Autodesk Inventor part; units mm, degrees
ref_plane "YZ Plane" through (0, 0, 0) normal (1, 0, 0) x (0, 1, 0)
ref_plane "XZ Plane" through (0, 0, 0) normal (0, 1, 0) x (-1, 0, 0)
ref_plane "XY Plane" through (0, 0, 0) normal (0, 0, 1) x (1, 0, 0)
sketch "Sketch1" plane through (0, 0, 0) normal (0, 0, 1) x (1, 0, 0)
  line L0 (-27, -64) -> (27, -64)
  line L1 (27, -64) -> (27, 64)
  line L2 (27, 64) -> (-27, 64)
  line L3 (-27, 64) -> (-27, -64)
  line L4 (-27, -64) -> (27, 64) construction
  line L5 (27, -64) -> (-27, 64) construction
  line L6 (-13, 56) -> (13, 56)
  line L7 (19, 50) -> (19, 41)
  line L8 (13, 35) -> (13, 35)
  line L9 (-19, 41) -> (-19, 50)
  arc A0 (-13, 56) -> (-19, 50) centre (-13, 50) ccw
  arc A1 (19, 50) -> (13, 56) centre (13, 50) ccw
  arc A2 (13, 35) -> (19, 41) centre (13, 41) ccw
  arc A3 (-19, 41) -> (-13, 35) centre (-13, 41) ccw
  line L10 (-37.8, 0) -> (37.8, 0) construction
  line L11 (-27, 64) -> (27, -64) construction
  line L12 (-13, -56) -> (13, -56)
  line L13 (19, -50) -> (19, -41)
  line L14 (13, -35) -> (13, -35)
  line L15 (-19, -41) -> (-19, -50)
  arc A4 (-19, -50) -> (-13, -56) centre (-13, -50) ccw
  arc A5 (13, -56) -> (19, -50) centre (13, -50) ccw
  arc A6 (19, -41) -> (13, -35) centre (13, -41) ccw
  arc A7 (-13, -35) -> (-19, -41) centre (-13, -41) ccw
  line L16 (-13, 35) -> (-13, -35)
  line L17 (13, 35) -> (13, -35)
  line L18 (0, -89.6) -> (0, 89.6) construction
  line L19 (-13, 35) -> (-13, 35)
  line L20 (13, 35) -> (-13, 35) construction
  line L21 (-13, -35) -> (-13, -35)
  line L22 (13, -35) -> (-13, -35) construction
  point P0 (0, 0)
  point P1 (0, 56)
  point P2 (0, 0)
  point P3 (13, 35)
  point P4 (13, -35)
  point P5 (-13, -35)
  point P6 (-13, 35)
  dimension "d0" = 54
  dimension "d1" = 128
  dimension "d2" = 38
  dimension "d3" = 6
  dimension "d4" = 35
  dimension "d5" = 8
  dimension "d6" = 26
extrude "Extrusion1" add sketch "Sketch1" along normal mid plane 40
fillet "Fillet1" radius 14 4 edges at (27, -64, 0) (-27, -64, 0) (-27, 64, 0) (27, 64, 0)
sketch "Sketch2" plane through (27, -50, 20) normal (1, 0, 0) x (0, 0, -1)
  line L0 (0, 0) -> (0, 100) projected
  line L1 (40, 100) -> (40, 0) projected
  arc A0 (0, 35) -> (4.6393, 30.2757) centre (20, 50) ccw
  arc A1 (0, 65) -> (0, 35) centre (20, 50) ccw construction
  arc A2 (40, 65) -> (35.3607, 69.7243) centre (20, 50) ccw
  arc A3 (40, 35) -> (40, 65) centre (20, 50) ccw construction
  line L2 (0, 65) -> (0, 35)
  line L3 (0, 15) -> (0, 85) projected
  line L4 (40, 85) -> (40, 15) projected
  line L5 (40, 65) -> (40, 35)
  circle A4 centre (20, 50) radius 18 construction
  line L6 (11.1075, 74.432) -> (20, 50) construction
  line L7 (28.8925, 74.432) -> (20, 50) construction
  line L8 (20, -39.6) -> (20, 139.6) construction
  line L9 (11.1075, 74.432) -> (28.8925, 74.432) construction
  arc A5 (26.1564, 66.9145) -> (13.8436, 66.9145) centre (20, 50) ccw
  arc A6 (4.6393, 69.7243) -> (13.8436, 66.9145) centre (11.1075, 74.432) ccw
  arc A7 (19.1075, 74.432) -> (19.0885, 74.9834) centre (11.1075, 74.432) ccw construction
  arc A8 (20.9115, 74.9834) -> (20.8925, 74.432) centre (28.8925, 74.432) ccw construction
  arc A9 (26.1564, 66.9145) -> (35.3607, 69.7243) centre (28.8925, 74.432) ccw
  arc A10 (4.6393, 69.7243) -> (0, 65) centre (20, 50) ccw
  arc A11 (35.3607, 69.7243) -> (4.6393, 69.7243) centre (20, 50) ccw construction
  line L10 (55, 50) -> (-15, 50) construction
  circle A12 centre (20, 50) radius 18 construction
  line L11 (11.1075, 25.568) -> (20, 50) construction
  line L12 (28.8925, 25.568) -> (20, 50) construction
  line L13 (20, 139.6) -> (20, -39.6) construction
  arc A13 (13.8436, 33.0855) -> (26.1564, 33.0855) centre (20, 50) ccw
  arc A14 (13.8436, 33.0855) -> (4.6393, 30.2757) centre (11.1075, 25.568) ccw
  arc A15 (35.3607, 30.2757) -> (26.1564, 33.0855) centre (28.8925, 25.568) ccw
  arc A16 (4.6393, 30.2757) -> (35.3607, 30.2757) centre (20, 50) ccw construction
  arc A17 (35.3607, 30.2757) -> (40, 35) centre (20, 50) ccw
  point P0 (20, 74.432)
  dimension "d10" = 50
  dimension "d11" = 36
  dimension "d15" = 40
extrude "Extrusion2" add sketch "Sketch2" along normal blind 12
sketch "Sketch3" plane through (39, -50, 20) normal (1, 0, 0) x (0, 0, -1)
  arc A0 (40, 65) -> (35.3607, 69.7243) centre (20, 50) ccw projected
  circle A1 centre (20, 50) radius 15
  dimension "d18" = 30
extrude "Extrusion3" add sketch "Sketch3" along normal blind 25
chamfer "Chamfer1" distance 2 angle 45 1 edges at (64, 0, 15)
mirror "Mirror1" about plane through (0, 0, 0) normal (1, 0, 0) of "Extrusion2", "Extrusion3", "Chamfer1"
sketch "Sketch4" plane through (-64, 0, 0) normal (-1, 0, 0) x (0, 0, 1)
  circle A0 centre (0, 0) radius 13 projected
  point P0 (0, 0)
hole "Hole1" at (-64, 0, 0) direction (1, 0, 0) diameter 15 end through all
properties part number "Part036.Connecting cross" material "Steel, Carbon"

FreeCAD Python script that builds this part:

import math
import FreeCAD as App
import Part
import Sketcher

V = App.Vector


def edges_at(feature, points):
    """Names of the edges that pass closest to the given points."""
    edges = feature.Shape.Edges
    near = lambda p: min(range(len(edges)), key=lambda i: edges[i].distToShape(Part.Vertex(*p))[0])
    return sorted({f"Edge{near(p) + 1}" for p in points})

doc = App.newDocument("Part")
params = doc.addObject("Spreadsheet::Sheet", "Params")
for row, (alias, value) in enumerate([
    ("sketch1_radius", "6 mm"),
    ("sketch1_width", "54 mm"),
    ("sketch1_width2", "26 mm"),
    ("sketch1_height", "128 mm"),
    ("pad1_length", "40 mm"),
    ("fillet_radius", "14 mm"),
    ("sketch2_radius", "25 mm"),
    ("sketch2_radius2", "18 mm"),
    ("sketch2_radius3", "8 mm"),
    ("sketch2_width", "30 mm"),
    ("pad2_length", "12 mm"),
    ("sketch3_diameter", "30 mm"),
    ("pad3_length", "25 mm"),
    ("chamfer_size", "2 mm"),
    ("sketch4_diameter", "15 mm"),
    ("hole_diameter", "15 mm"),
], start=1):
    params.set(f"A{row}", alias)
    params.set(f"B{row}", "=" + value)
    params.setAlias(f"B{row}", alias)

body = doc.addObject("PartDesign::Body", "Body")

# Sketch on XY plane
sketch1 = body.newObject("Sketcher::SketchObject", "Sketch")
sketch1.AttachmentSupport = (doc.getObject("XY_Plane"), [""])
sketch1.MapMode = "FlatFace"
sketch1.addGeometry([
    Part.LineSegment(V(-27, 64, 0), V(-27, -64, 0)),  # 0
    Part.LineSegment(V(-27, -64, 0), V(27, -64, 0)),  # 1
    Part.LineSegment(V(27, -64, 0), V(27, 64, 0)),  # 2
    Part.LineSegment(V(27, 64, 0), V(-27, 64, 0)),  # 3
    Part.ArcOfCircle(Part.Circle(V(-13, 50, 0), V(0, 0, 1), 6), math.radians(90), math.radians(180)),  # 4
    Part.LineSegment(V(-13, 56, 0), V(13, 56, 0)),  # 5
    Part.ArcOfCircle(Part.Circle(V(13, 50, 0), V(0, 0, 1), 6), math.radians(0), math.radians(90)),  # 6
    Part.LineSegment(V(19, 50, 0), V(19, 41, 0)),  # 7
    Part.ArcOfCircle(Part.Circle(V(13, 41, 0), V(0, 0, 1), 6), math.radians(-90), math.radians(0)),  # 8
    Part.LineSegment(V(13, 35, 0), V(13, -35, 0)),  # 9
    Part.ArcOfCircle(Part.Circle(V(13, -41, 0), V(0, 0, 1), 6), math.radians(0), math.radians(90)),  # 10
    Part.LineSegment(V(19, -41, 0), V(19, -50, 0)),  # 11
    Part.ArcOfCircle(Part.Circle(V(13, -50, 0), V(0, 0, 1), 6), math.radians(-90), math.radians(0)),  # 12
    Part.LineSegment(V(13, -56, 0), V(-13, -56, 0)),  # 13
    Part.ArcOfCircle(Part.Circle(V(-13, -50, 0), V(0, 0, 1), 6), math.radians(180), math.radians(270)),  # 14
    Part.LineSegment(V(-19, -50, 0), V(-19, -41, 0)),  # 15
    Part.ArcOfCircle(Part.Circle(V(-13, -41, 0), V(0, 0, 1), 6), math.radians(90), math.radians(180)),  # 16
    Part.LineSegment(V(-13, -35, 0), V(-13, 35, 0)),  # 17
    Part.ArcOfCircle(Part.Circle(V(-13, 41, 0), V(0, 0, 1), 6), math.radians(180), math.radians(270)),  # 18
    Part.LineSegment(V(-19, 41, 0), V(-19, 50, 0)),  # 19
], False)
sketch1.addConstraint([
    Sketcher.Constraint("Coincident", 0, 2, 1, 1),
    Sketcher.Constraint("Coincident", 1, 2, 2, 1),
    Sketcher.Constraint("Coincident", 2, 2, 3, 1),
    Sketcher.Constraint("Coincident", 3, 2, 0, 1),
    Sketcher.Constraint("Tangent", 4, 1, 5, 1),
    Sketcher.Constraint("Tangent", 5, 2, 6, 2),
    Sketcher.Constraint("Tangent", 6, 1, 7, 1),
    Sketcher.Constraint("Tangent", 7, 2, 8, 2),
    Sketcher.Constraint("Coincident", 8, 1, 9, 1),
    Sketcher.Constraint("Coincident", 9, 2, 10, 2),
    Sketcher.Constraint("Tangent", 10, 1, 11, 1),
    Sketcher.Constraint("Tangent", 11, 2, 12, 2),
    Sketcher.Constraint("Tangent", 12, 1, 13, 1),
    Sketcher.Constraint("Tangent", 13, 2, 14, 2),
    Sketcher.Constraint("Tangent", 14, 1, 15, 1),
    Sketcher.Constraint("Tangent", 15, 2, 16, 2),
    Sketcher.Constraint("Coincident", 16, 1, 17, 1),
    Sketcher.Constraint("Coincident", 17, 2, 18, 2),
    Sketcher.Constraint("Tangent", 18, 1, 19, 1),
    Sketcher.Constraint("Tangent", 19, 2, 4, 2),
    Sketcher.Constraint("Vertical", 0),
    Sketcher.Constraint("Horizontal", 1),
    Sketcher.Constraint("Vertical", 2),
    Sketcher.Constraint("Horizontal", 3),
    Sketcher.Constraint("Horizontal", 5),
    Sketcher.Constraint("Vertical", 7),
    Sketcher.Constraint("Vertical", 9),
    Sketcher.Constraint("Vertical", 11),
    Sketcher.Constraint("Horizontal", 13),
    Sketcher.Constraint("Vertical", 15),
    Sketcher.Constraint("Vertical", 17),
    Sketcher.Constraint("Vertical", 19),
    Sketcher.Constraint("Equal", 4, 6),
    Sketcher.Constraint("Equal", 6, 8),
    Sketcher.Constraint("Equal", 8, 10),
    Sketcher.Constraint("Equal", 10, 12),
    Sketcher.Constraint("Equal", 12, 14),
    Sketcher.Constraint("Equal", 14, 16),
    Sketcher.Constraint("Equal", 16, 18),
    Sketcher.Constraint("Symmetric", 4, 3, 12, 3, -1, 1),
    Sketcher.Constraint("Symmetric", 8, 3, 16, 3, -1, 1),
    Sketcher.Constraint("Symmetric", 0, 2, 2, 2, -1, 1),
    Sketcher.Constraint("Symmetric", 9, 2, 17, 2, -1, 1),
    Sketcher.Constraint("Symmetric", 10, 3, 16, 3, -2),
    Sketcher.Constraint("Vertical", 5, 2, 8, 1),
    Sketcher.Constraint("Radius", 4, 6.0),
    Sketcher.Constraint("DistanceX", 1, 1, 1, 2, 54.0),
    Sketcher.Constraint("DistanceX", 5, 1, 5, 2, 26.0),
    Sketcher.Constraint("DistanceY", 0, 2, 0, 1, 128.0),
    Sketcher.Constraint("DistanceY", -1, 1, 8, 1, 35.0),
    Sketcher.Constraint("DistanceY", 4, 1, 3, 2, 8.0),
])
sketch1.setExpression("Constraints[45]", "Params.sketch1_radius")
sketch1.setExpression("Constraints[46]", "Params.sketch1_width")
sketch1.setExpression("Constraints[47]", "Params.sketch1_width2")
sketch1.setExpression("Constraints[48]", "Params.sketch1_height")
pad1 = body.newObject("PartDesign::Pad", "Pad")
pad1.Profile = sketch1
pad1.setExpression("Length", "Params.pad1_length")
pad1.Midplane = True
doc.recompute()

fillet = body.newObject("PartDesign::Fillet", "Fillet")
fillet.Base = (pad1, edges_at(pad1, [
    (27, -64, 0),
    (-27, -64, 0),
    (-27, 64, 0),
    (27, 64, 0),
]))
fillet.setExpression("Radius", "Params.fillet_radius")

# Sketch on YZ plane
sketch2 = body.newObject("Sketcher::SketchObject", "Sketch001")
sketch2.AttachmentSupport = (doc.getObject("YZ_Plane"), [""])
sketch2.MapMode = "FlatFace"
sketch2.AttachmentOffset = App.Placement(V(0, 0, 27), App.Rotation())
sketch2.addGeometry([
    Part.LineSegment(V(15, 20, 0), V(-15, 20, 0)),  # 0
    Part.ArcOfCircle(Part.Circle(V(0, 0, 0), V(0, 0, 1), 24.999982), math.radians(126.869898), math.radians(142.089599)),  # 1
    Part.ArcOfCircle(Part.Circle(V(-24.432, 8.8925, 0), V(0, 0, 1), 7.999941), math.radians(-19.999689), math.radians(53.952038)),  # 2
    Part.ArcOfCircle(Part.Circle(V(0, 0, 0), V(0, 0, 1), 18.000044), math.radians(159.999924), math.radians(200.000076)),  # 3
    Part.ArcOfCircle(Part.Circle(V(-24.432, -8.8925, 0), V(0, 0, 1), 8.000003), math.radians(-53.952038), math.radians(19.999689)),  # 4
    Part.ArcOfCircle(Part.Circle(V(0, 0, 0), V(0, 0, 1), 25), math.radians(-142.089599), math.radians(-126.869898)),  # 5
    Part.LineSegment(V(-15, -20, 0), V(15, -20, 0)),  # 6
    Part.ArcOfCircle(Part.Circle(V(0, 0, 0), V(0, 0, 1), 24.999982), math.radians(-53.130102), math.radians(-37.910401)),  # 7
    Part.ArcOfCircle(Part.Circle(V(24.432, -8.8925, 0), V(0, 0, 1), 8.000025), math.radians(160.000311), math.radians(233.952038)),  # 8
    Part.ArcOfCircle(Part.Circle(V(0, 0, 0), V(0, 0, 1), 18.000044), math.radians(-20.000076), math.radians(20.000076)),  # 9
    Part.ArcOfCircle(Part.Circle(V(24.432, 8.8925, 0), V(0, 0, 1), 8), math.radians(126.047962), math.radians(199.999689)),  # 10
    Part.ArcOfCircle(Part.Circle(V(0, 0, 0), V(0, 0, 1), 25), math.radians(37.910401), math.radians(53.130102)),  # 11
], False)
sketch2.addConstraint([
    Sketcher.Constraint("Coincident", 0, 2, 1, 1),
    Sketcher.Constraint("Coincident", 1, 2, 2, 2),
    Sketcher.Constraint("Tangent", 2, 1, 3, 1),
    Sketcher.Constraint("Tangent", 3, 2, 4, 2),
    Sketcher.Constraint("Coincident", 4, 1, 5, 1),
    Sketcher.Constraint("Coincident", 5, 2, 6, 1),
    Sketcher.Constraint("Coincident", 6, 2, 7, 1),
    Sketcher.Constraint("Coincident", 7, 2, 8, 2),
    Sketcher.Constraint("Tangent", 8, 1, 9, 1),
    Sketcher.Constraint("Tangent", 9, 2, 10, 2),
    Sketcher.Constraint("Coincident", 10, 1, 11, 1),
    Sketcher.Constraint("Coincident", 11, 2, 0, 1),
    Sketcher.Constraint("Horizontal", 0),
    Sketcher.Constraint("Horizontal", 6),
    Sketcher.Constraint("Coincident", 1, 3, -1, 1),
    Sketcher.Constraint("Coincident", 3, 3, -1, 1),
    Sketcher.Constraint("Coincident", 5, 3, -1, 1),
    Sketcher.Constraint("Coincident", 7, 3, -1, 1),
    Sketcher.Constraint("Coincident", 9, 3, -1, 1),
    Sketcher.Constraint("Coincident", 11, 3, -1, 1),
    Sketcher.Constraint("Equal", 2, 4),
    Sketcher.Constraint("Equal", 1, 5),
    Sketcher.Constraint("Equal", 5, 7),
    Sketcher.Constraint("Equal", 4, 8),
    Sketcher.Constraint("Equal", 3, 9),
    Sketcher.Constraint("Equal", 8, 10),
    Sketcher.Constraint("Equal", 7, 11),
    Sketcher.Constraint("Horizontal", 4, 3, 8, 3),
    Sketcher.Constraint("Horizontal", 2, 3, 10, 3),
    Sketcher.Constraint("Vertical", 2, 3, 4, 3),
    Sketcher.Constraint("Vertical", 0, 2, 5, 2),
    Sketcher.Constraint("Radius", 1, 25.0),
    Sketcher.Constraint("Radius", 3, 18.0),
    Sketcher.Constraint("Radius", 2, 8.0),
    Sketcher.Constraint("DistanceX", 0, 2, 0, 1, 30.0),
    Sketcher.Constraint("DistanceX", 8, 1, 10, 1, 2.81),
])
sketch2.setExpression("Constraints[31]", "Params.sketch2_radius")
sketch2.setExpression("Constraints[32]", "Params.sketch2_radius2")
sketch2.setExpression("Constraints[33]", "Params.sketch2_radius3")
sketch2.setExpression("Constraints[34]", "Params.sketch2_width")
pad2 = body.newObject("PartDesign::Pad", "Pad001")
pad2.Profile = sketch2
pad2.setExpression("Length", "Params.pad2_length")

# Sketch on YZ plane
sketch3 = body.newObject("Sketcher::SketchObject", "Sketch002")
sketch3.AttachmentSupport = (doc.getObject("YZ_Plane"), [""])
sketch3.MapMode = "FlatFace"
sketch3.AttachmentOffset = App.Placement(V(0, 0, 39), App.Rotation())
sketch3.addGeometry(Part.Circle(V(0, 0, 0), V(0, 0, 1), 15), False)
sketch3.addConstraint([
    Sketcher.Constraint("Coincident", 0, 3, -1, 1),
    Sketcher.Constraint("Diameter", 0, 30.0),
])
sketch3.setExpression("Constraints[1]", "Params.sketch3_diameter")
pad3 = body.newObject("PartDesign::Pad", "Pad002")
pad3.Profile = sketch3
pad3.setExpression("Length", "Params.pad3_length")
doc.recompute()

chamfer = body.newObject("PartDesign::Chamfer", "Chamfer")
chamfer.Base = (pad3, edges_at(pad3, [(64, 0, 15)]))
chamfer.setExpression("Size", "Params.chamfer_size")
doc.recompute()

mirrored = body.newObject("PartDesign::Mirrored", "Mirrored")
mirrored.Originals = [pad2, pad3, chamfer]
mirrored.MirrorPlane = (doc.getObject("YZ_Plane"), [""])
body.Tip = mirrored

# Sketch on YZ plane
sketch4 = body.newObject("Sketcher::SketchObject", "Sketch003")
sketch4.AttachmentSupport = (doc.getObject("YZ_Plane"), [""])
sketch4.MapMode = "FlatFace"
sketch4.AttachmentOffset = App.Placement(V(0, 0, -64), App.Rotation())
sketch4.addGeometry(Part.Circle(V(0, 0, 0), V(0, 0, 1), 7.5), False)
sketch4.addConstraint([
    Sketcher.Constraint("Coincident", 0, 3, -1, 1),
    Sketcher.Constraint("Diameter", 0, 15.0),
])
sketch4.setExpression("Constraints[1]", "Params.sketch4_diameter")
doc.recompute()
hole = body.newObject("PartDesign::Hole", "Hole")
hole.Profile = sketch4
hole.ThreadType = "None"
hole.setExpression("Diameter", "Params.hole_diameter")
hole.DepthType = "ThroughAll"
hole.Reversed = True

doc.recompute()
